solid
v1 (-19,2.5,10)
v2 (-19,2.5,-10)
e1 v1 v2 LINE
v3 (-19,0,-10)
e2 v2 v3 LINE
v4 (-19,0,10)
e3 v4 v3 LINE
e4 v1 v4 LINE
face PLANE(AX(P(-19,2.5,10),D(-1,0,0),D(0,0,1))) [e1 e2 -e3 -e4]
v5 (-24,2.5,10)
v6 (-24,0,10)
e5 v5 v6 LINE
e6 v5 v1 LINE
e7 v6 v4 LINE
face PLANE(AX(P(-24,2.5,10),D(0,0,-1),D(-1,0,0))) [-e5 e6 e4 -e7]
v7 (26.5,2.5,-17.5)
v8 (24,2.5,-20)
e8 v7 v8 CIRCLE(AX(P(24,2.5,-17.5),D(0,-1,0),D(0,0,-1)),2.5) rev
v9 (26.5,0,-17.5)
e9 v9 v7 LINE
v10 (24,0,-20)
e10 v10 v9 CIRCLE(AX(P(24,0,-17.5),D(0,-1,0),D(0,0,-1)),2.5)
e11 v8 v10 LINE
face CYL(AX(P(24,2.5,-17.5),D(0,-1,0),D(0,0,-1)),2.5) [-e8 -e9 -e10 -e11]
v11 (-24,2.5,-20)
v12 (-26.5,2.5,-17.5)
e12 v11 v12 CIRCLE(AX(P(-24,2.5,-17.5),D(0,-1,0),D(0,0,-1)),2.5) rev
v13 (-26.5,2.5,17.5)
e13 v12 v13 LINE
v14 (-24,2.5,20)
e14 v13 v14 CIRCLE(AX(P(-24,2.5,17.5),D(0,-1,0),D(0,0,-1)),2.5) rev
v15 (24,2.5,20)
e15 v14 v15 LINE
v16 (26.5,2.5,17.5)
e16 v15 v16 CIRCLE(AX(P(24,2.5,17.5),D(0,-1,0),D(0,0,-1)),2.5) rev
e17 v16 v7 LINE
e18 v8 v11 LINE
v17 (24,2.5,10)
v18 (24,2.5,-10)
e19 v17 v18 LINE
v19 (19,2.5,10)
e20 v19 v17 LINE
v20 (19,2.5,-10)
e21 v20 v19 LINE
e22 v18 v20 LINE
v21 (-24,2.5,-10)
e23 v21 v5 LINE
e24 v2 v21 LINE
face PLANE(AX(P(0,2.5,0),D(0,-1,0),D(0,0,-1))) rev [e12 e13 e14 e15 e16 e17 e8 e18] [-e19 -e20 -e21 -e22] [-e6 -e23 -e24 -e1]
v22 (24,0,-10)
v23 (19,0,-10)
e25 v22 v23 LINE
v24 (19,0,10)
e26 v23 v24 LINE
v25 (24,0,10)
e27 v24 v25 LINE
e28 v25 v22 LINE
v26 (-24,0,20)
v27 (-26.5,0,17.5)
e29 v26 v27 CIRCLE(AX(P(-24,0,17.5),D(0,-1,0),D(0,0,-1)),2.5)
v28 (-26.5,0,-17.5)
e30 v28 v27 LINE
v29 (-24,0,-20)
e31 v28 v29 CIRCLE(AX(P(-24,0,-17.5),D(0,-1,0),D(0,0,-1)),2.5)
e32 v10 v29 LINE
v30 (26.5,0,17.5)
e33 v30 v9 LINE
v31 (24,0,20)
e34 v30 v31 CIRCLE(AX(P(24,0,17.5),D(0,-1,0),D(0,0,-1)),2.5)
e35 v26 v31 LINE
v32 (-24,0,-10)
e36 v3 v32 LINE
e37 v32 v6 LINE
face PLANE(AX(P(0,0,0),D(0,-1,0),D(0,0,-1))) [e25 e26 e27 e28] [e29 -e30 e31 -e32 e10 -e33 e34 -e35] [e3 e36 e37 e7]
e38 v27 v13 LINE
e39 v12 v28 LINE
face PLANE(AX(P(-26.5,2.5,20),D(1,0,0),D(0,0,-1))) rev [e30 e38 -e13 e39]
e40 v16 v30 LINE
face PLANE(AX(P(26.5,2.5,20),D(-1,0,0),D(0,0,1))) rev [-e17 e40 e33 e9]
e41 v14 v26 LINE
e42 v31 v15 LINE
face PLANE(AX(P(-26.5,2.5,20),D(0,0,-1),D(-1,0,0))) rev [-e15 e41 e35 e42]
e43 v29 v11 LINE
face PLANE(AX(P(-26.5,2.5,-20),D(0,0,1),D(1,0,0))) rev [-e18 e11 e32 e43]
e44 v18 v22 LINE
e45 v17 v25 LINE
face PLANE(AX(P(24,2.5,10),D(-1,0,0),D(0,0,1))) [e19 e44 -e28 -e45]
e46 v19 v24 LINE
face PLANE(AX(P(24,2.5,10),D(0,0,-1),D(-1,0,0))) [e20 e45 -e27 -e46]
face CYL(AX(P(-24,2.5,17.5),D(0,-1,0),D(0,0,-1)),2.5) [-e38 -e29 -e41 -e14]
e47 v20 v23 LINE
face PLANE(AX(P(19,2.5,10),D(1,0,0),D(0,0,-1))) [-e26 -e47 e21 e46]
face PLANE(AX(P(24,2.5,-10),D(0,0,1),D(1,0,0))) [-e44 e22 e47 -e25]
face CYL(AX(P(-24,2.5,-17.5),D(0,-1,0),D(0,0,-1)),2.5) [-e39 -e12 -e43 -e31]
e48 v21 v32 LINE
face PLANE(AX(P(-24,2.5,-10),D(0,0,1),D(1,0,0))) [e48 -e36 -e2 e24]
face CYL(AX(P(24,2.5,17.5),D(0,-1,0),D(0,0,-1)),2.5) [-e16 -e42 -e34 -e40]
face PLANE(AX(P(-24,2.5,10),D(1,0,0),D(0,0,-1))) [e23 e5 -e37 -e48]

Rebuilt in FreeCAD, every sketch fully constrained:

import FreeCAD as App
import Part
import Sketcher
from FreeCAD import Vector
Q = App.Units.Quantity


def edges_at(feature, points):
    """Names of the edges that pass closest to the given points."""
    edges = feature.Shape.Edges
    near = lambda p: min(range(len(edges)), key=lambda i: edges[i].distToShape(Part.Vertex(*p))[0])
    return sorted({f"Edge{near(p) + 1}" for p in points})

doc = App.newDocument("Part")
params = doc.addObject("Spreadsheet::Sheet", "Params")
for row, (alias, value) in enumerate([
    ("sketch1_width", "53 mm"),
    ("sketch1_width2", "5 mm"),
    ("sketch1_height", "40 mm"),
    ("sketch1_height2", "20 mm"),
    ("pad1_length", "2.5 mm"),
    ("fillet_radius", "2.5 mm"),
], start=1):
    params.set(f"A{row}", alias)
    params.set(f"B{row}", "=" + value)
    params.setAlias(f"B{row}", alias)

body = doc.addObject("PartDesign::Body", "Body")

# Sketch on XZ plane
sketch1 = body.newObject("Sketcher::SketchObject", "Sketch")
sketch1.AttachmentSupport = (doc.getObject("XZ_Plane"), [""])
sketch1.MapMode = "FlatFace"
sketch1.addGeometry(Part.LineSegment(Vector(-26, -20, 0), Vector(-26, 20, 0)), False)
sketch1.addGeometry(Part.LineSegment(Vector(-26, 20, 0), Vector(26, 20, 0)), False)
sketch1.addGeometry(Part.LineSegment(Vector(26, 20, 0), Vector(26, -20, 0)), False)
sketch1.addGeometry(Part.LineSegment(Vector(26, -20, 0), Vector(-26, -20, 0)), False)
sketch1.addGeometry(Part.LineSegment(Vector(-19, 10, 0), Vector(-24, 10, 0)), False)
sketch1.addGeometry(Part.LineSegment(Vector(-24, 10, 0), Vector(-24, -10, 0)), False)
sketch1.addGeometry(Part.LineSegment(Vector(-24, -10, 0), Vector(-19, -10, 0)), False)
sketch1.addGeometry(Part.LineSegment(Vector(-19, -10, 0), Vector(-19, 10, 0)), False)
sketch1.addGeometry(Part.LineSegment(Vector(24, 10, 0), Vector(19, 10, 0)), False)
sketch1.addGeometry(Part.LineSegment(Vector(19, 10, 0), Vector(19, -10, 0)), False)
sketch1.addGeometry(Part.LineSegment(Vector(19, -10, 0), Vector(24, -10, 0)), False)
sketch1.addGeometry(Part.LineSegment(Vector(24, -10, 0), Vector(24, 10, 0)), False)
sketch1.addConstraint(Sketcher.Constraint("Coincident", 0, 2, 1, 1))
sketch1.addConstraint(Sketcher.Constraint("Coincident", 1, 2, 2, 1))
sketch1.addConstraint(Sketcher.Constraint("Coincident", 2, 2, 3, 1))
sketch1.addConstraint(Sketcher.Constraint("Coincident", 3, 2, 0, 1))
sketch1.addConstraint(Sketcher.Constraint("Coincident", 4, 2, 5, 1))
sketch1.addConstraint(Sketcher.Constraint("Coincident", 5, 2, 6, 1))
sketch1.addConstraint(Sketcher.Constraint("Coincident", 6, 2, 7, 1))
sketch1.addConstraint(Sketcher.Constraint("Coincident", 7, 2, 4, 1))
sketch1.addConstraint(Sketcher.Constraint("Coincident", 8, 2, 9, 1))
sketch1.addConstraint(Sketcher.Constraint("Coincident", 9, 2, 10, 1))
sketch1.addConstraint(Sketcher.Constraint("Coincident", 10, 2, 11, 1))
sketch1.addConstraint(Sketcher.Constraint("Coincident", 11, 2, 8, 1))
sketch1.addConstraint(Sketcher.Constraint("Vertical", 0))
sketch1.addConstraint(Sketcher.Constraint("Horizontal", 1))
sketch1.addConstraint(Sketcher.Constraint("Vertical", 2))
sketch1.addConstraint(Sketcher.Constraint("Horizontal", 3))
sketch1.addConstraint(Sketcher.Constraint("Horizontal", 4))
sketch1.addConstraint(Sketcher.Constraint("Vertical", 5))
sketch1.addConstraint(Sketcher.Constraint("Horizontal", 6))
sketch1.addConstraint(Sketcher.Constraint("Vertical", 7))
sketch1.addConstraint(Sketcher.Constraint("Horizontal", 8))
sketch1.addConstraint(Sketcher.Constraint("Vertical", 9))
sketch1.addConstraint(Sketcher.Constraint("Horizontal", 10))
sketch1.addConstraint(Sketcher.Constraint("Vertical", 11))
sketch1.addConstraint(Sketcher.Constraint("Symmetric", 0, 2, 2, 2, -1, 1))
sketch1.addConstraint(Sketcher.Constraint("Symmetric", 6, 2, 8, 2, -1, 1))
sketch1.addConstraint(Sketcher.Constraint("Symmetric", 4, 2, 10, 2, -1, 1))
sketch1.addConstraint(Sketcher.Constraint("Horizontal", 7, 2, 8, 2))
sketch1.addConstraint(Sketcher.Constraint("DistanceX", 1, 1, 1, 2, Q("53 mm")))
sketch1.addConstraint(Sketcher.Constraint("DistanceX", 4, 2, 4, 1, Q("5 mm")))
sketch1.addConstraint(Sketcher.Constraint("DistanceY", 0, 1, 0, 2, Q("40 mm")))
sketch1.addConstraint(Sketcher.Constraint("DistanceY", 5, 2, 5, 1, Q("20 mm")))
sketch1.addConstraint(Sketcher.Constraint("DistanceX", 4, 2, -1, 1, Q("24 mm")))
sketch1.setExpression("Constraints[28]", "Params.sketch1_width")
sketch1.setExpression("Constraints[29]", "Params.sketch1_width2")
sketch1.setExpression("Constraints[30]", "Params.sketch1_height")
sketch1.setExpression("Constraints[31]", "Params.sketch1_height2")
pad1 = body.newObject("PartDesign::Pad", "Pad")
pad1.Profile = sketch1
pad1.setExpression("Length", "Params.pad1_length")
pad1.Reversed = True
doc.recompute()

fillet = body.newObject("PartDesign::Fillet", "Fillet")
fillet.Base = (pad1, edges_at(pad1, [
    (26.5, 1.25, 20),
    (-26.5, 1.25, 20),
    (-26.5, 1.25, -20),
    (26.5, 1.25, -20),
]))
fillet.setExpression("Radius", "Params.fillet_radius")

doc.recompute()
